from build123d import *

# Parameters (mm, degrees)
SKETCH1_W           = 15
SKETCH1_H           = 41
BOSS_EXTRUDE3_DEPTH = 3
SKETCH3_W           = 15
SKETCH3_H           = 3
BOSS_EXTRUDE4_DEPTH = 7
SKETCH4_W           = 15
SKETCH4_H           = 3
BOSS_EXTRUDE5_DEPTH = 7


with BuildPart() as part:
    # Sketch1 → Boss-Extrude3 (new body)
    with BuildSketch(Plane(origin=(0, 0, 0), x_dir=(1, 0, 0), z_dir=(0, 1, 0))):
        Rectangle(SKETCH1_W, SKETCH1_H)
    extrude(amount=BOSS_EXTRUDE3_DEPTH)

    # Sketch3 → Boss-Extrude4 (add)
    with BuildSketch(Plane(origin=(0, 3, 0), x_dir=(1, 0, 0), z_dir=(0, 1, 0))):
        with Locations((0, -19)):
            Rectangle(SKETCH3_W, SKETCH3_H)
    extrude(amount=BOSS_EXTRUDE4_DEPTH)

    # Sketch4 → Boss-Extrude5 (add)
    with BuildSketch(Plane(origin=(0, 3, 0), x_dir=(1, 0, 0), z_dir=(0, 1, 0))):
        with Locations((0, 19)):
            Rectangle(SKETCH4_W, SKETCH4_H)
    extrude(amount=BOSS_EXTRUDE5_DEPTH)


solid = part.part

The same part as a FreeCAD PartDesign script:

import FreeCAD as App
import Part
import Sketcher


def add_polygon(sketch, points):
    """Adds a closed chain of lines whose ends are joined by coincident constraints."""
    first, n = sketch.GeometryCount, len(points)
    for a, b in zip(points, points[1:] + points[:1]):
        sketch.addGeometry(Part.LineSegment(App.Vector(*a, 0), App.Vector(*b, 0)), False)
    for i in range(n):
        sketch.addConstraint(Sketcher.Constraint("Coincident", first + i, 2, first + (i + 1) % n, 1))

doc = App.newDocument("Part")
body = doc.addObject("PartDesign::Body", "Body")

sketch1 = body.newObject("Sketcher::SketchObject", "Sketch")
sketch1.AttachmentSupport = (doc.getObject("XZ_Plane"), [""])
sketch1.MapMode = "FlatFace"
add_polygon(sketch1, [(-8, -20), (-8, 20), (8, 20), (8, -20)])
sketch1.addConstraint(Sketcher.Constraint("Vertical", 0))
sketch1.addConstraint(Sketcher.Constraint("Horizontal", 1))
sketch1.addConstraint(Sketcher.Constraint("Vertical", 2))
sketch1.addConstraint(Sketcher.Constraint("Horizontal", 3))
sketch1.addConstraint(Sketcher.Constraint("Symmetric", 0, 2, 2, 2, -1, 1))
sketch1.addConstraint(Sketcher.Constraint("DistanceX", 1, 1, 1, 2, 15.0))
sketch1.addConstraint(Sketcher.Constraint("DistanceY", 0, 1, 0, 2, 41.0))
pad1 = body.newObject("PartDesign::Pad", "Pad")
pad1.Profile = sketch1
pad1.Length = 3
pad1.Reversed = True

sketch2 = body.newObject("Sketcher::SketchObject", "Sketch001")
sketch2.AttachmentSupport = (doc.getObject("XZ_Plane"), [""])
sketch2.MapMode = "FlatFace"
sketch2.AttachmentOffset = App.Placement(App.Vector(0, 0, -3), App.Rotation())
add_polygon(sketch2, [(-7.5, 17.5), (-7.5, 20.5), (7.5, 20.5), (7.5, 17.5)])
sketch2.addConstraint(Sketcher.Constraint("Vertical", 0))
sketch2.addConstraint(Sketcher.Constraint("Horizontal", 1))
sketch2.addConstraint(Sketcher.Constraint("Vertical", 2))
sketch2.addConstraint(Sketcher.Constraint("Horizontal", 3))
sketch2.addConstraint(Sketcher.Constraint("DistanceX", 1, 1, 1, 2, 15.0))
sketch2.addConstraint(Sketcher.Constraint("DistanceY", 0, 1, 0, 2, 3.0))
sketch2.addConstraint(Sketcher.Constraint("DistanceX", 0, 2, -1, 1, 7.5))
sketch2.addConstraint(Sketcher.Constraint("DistanceY", -1, 1, 0, 2, 20.5))
pad2 = body.newObject("PartDesign::Pad", "Pad001")
pad2.Profile = sketch2
pad2.Length = 7
pad2.Reversed = True

sketch3 = body.newObject("Sketcher::SketchObject", "Sketch002")
sketch3.AttachmentSupport = (doc.getObject("XZ_Plane"), [""])
sketch3.MapMode = "FlatFace"
sketch3.AttachmentOffset = App.Placement(App.Vector(0, 0, -3), App.Rotation())
add_polygon(sketch3, [(-7.5, -20.5), (-7.5, -17.5), (7.5, -17.5), (7.5, -20.5)])
sketch3.addConstraint(Sketcher.Constraint("Vertical", 0))
sketch3.addConstraint(Sketcher.Constraint("Horizontal", 1))
sketch3.addConstraint(Sketcher.Constraint("Vertical", 2))
sketch3.addConstraint(Sketcher.Constraint("Horizontal", 3))
sketch3.addConstraint(Sketcher.Constraint("DistanceX", 1, 1, 1, 2, 15.0))
sketch3.addConstraint(Sketcher.Constraint("DistanceY", 0, 1, 0, 2, 3.0))
sketch3.addConstraint(Sketcher.Constraint("DistanceX", 0, 2, -1, 1, 7.5))
sketch3.addConstraint(Sketcher.Constraint("DistanceY", 0, 2, -1, 1, 17.5))
pad3 = body.newObject("PartDesign::Pad", "Pad002")
pad3.Profile = sketch3
pad3.Length = 7
pad3.Reversed = True

doc.recompute()
